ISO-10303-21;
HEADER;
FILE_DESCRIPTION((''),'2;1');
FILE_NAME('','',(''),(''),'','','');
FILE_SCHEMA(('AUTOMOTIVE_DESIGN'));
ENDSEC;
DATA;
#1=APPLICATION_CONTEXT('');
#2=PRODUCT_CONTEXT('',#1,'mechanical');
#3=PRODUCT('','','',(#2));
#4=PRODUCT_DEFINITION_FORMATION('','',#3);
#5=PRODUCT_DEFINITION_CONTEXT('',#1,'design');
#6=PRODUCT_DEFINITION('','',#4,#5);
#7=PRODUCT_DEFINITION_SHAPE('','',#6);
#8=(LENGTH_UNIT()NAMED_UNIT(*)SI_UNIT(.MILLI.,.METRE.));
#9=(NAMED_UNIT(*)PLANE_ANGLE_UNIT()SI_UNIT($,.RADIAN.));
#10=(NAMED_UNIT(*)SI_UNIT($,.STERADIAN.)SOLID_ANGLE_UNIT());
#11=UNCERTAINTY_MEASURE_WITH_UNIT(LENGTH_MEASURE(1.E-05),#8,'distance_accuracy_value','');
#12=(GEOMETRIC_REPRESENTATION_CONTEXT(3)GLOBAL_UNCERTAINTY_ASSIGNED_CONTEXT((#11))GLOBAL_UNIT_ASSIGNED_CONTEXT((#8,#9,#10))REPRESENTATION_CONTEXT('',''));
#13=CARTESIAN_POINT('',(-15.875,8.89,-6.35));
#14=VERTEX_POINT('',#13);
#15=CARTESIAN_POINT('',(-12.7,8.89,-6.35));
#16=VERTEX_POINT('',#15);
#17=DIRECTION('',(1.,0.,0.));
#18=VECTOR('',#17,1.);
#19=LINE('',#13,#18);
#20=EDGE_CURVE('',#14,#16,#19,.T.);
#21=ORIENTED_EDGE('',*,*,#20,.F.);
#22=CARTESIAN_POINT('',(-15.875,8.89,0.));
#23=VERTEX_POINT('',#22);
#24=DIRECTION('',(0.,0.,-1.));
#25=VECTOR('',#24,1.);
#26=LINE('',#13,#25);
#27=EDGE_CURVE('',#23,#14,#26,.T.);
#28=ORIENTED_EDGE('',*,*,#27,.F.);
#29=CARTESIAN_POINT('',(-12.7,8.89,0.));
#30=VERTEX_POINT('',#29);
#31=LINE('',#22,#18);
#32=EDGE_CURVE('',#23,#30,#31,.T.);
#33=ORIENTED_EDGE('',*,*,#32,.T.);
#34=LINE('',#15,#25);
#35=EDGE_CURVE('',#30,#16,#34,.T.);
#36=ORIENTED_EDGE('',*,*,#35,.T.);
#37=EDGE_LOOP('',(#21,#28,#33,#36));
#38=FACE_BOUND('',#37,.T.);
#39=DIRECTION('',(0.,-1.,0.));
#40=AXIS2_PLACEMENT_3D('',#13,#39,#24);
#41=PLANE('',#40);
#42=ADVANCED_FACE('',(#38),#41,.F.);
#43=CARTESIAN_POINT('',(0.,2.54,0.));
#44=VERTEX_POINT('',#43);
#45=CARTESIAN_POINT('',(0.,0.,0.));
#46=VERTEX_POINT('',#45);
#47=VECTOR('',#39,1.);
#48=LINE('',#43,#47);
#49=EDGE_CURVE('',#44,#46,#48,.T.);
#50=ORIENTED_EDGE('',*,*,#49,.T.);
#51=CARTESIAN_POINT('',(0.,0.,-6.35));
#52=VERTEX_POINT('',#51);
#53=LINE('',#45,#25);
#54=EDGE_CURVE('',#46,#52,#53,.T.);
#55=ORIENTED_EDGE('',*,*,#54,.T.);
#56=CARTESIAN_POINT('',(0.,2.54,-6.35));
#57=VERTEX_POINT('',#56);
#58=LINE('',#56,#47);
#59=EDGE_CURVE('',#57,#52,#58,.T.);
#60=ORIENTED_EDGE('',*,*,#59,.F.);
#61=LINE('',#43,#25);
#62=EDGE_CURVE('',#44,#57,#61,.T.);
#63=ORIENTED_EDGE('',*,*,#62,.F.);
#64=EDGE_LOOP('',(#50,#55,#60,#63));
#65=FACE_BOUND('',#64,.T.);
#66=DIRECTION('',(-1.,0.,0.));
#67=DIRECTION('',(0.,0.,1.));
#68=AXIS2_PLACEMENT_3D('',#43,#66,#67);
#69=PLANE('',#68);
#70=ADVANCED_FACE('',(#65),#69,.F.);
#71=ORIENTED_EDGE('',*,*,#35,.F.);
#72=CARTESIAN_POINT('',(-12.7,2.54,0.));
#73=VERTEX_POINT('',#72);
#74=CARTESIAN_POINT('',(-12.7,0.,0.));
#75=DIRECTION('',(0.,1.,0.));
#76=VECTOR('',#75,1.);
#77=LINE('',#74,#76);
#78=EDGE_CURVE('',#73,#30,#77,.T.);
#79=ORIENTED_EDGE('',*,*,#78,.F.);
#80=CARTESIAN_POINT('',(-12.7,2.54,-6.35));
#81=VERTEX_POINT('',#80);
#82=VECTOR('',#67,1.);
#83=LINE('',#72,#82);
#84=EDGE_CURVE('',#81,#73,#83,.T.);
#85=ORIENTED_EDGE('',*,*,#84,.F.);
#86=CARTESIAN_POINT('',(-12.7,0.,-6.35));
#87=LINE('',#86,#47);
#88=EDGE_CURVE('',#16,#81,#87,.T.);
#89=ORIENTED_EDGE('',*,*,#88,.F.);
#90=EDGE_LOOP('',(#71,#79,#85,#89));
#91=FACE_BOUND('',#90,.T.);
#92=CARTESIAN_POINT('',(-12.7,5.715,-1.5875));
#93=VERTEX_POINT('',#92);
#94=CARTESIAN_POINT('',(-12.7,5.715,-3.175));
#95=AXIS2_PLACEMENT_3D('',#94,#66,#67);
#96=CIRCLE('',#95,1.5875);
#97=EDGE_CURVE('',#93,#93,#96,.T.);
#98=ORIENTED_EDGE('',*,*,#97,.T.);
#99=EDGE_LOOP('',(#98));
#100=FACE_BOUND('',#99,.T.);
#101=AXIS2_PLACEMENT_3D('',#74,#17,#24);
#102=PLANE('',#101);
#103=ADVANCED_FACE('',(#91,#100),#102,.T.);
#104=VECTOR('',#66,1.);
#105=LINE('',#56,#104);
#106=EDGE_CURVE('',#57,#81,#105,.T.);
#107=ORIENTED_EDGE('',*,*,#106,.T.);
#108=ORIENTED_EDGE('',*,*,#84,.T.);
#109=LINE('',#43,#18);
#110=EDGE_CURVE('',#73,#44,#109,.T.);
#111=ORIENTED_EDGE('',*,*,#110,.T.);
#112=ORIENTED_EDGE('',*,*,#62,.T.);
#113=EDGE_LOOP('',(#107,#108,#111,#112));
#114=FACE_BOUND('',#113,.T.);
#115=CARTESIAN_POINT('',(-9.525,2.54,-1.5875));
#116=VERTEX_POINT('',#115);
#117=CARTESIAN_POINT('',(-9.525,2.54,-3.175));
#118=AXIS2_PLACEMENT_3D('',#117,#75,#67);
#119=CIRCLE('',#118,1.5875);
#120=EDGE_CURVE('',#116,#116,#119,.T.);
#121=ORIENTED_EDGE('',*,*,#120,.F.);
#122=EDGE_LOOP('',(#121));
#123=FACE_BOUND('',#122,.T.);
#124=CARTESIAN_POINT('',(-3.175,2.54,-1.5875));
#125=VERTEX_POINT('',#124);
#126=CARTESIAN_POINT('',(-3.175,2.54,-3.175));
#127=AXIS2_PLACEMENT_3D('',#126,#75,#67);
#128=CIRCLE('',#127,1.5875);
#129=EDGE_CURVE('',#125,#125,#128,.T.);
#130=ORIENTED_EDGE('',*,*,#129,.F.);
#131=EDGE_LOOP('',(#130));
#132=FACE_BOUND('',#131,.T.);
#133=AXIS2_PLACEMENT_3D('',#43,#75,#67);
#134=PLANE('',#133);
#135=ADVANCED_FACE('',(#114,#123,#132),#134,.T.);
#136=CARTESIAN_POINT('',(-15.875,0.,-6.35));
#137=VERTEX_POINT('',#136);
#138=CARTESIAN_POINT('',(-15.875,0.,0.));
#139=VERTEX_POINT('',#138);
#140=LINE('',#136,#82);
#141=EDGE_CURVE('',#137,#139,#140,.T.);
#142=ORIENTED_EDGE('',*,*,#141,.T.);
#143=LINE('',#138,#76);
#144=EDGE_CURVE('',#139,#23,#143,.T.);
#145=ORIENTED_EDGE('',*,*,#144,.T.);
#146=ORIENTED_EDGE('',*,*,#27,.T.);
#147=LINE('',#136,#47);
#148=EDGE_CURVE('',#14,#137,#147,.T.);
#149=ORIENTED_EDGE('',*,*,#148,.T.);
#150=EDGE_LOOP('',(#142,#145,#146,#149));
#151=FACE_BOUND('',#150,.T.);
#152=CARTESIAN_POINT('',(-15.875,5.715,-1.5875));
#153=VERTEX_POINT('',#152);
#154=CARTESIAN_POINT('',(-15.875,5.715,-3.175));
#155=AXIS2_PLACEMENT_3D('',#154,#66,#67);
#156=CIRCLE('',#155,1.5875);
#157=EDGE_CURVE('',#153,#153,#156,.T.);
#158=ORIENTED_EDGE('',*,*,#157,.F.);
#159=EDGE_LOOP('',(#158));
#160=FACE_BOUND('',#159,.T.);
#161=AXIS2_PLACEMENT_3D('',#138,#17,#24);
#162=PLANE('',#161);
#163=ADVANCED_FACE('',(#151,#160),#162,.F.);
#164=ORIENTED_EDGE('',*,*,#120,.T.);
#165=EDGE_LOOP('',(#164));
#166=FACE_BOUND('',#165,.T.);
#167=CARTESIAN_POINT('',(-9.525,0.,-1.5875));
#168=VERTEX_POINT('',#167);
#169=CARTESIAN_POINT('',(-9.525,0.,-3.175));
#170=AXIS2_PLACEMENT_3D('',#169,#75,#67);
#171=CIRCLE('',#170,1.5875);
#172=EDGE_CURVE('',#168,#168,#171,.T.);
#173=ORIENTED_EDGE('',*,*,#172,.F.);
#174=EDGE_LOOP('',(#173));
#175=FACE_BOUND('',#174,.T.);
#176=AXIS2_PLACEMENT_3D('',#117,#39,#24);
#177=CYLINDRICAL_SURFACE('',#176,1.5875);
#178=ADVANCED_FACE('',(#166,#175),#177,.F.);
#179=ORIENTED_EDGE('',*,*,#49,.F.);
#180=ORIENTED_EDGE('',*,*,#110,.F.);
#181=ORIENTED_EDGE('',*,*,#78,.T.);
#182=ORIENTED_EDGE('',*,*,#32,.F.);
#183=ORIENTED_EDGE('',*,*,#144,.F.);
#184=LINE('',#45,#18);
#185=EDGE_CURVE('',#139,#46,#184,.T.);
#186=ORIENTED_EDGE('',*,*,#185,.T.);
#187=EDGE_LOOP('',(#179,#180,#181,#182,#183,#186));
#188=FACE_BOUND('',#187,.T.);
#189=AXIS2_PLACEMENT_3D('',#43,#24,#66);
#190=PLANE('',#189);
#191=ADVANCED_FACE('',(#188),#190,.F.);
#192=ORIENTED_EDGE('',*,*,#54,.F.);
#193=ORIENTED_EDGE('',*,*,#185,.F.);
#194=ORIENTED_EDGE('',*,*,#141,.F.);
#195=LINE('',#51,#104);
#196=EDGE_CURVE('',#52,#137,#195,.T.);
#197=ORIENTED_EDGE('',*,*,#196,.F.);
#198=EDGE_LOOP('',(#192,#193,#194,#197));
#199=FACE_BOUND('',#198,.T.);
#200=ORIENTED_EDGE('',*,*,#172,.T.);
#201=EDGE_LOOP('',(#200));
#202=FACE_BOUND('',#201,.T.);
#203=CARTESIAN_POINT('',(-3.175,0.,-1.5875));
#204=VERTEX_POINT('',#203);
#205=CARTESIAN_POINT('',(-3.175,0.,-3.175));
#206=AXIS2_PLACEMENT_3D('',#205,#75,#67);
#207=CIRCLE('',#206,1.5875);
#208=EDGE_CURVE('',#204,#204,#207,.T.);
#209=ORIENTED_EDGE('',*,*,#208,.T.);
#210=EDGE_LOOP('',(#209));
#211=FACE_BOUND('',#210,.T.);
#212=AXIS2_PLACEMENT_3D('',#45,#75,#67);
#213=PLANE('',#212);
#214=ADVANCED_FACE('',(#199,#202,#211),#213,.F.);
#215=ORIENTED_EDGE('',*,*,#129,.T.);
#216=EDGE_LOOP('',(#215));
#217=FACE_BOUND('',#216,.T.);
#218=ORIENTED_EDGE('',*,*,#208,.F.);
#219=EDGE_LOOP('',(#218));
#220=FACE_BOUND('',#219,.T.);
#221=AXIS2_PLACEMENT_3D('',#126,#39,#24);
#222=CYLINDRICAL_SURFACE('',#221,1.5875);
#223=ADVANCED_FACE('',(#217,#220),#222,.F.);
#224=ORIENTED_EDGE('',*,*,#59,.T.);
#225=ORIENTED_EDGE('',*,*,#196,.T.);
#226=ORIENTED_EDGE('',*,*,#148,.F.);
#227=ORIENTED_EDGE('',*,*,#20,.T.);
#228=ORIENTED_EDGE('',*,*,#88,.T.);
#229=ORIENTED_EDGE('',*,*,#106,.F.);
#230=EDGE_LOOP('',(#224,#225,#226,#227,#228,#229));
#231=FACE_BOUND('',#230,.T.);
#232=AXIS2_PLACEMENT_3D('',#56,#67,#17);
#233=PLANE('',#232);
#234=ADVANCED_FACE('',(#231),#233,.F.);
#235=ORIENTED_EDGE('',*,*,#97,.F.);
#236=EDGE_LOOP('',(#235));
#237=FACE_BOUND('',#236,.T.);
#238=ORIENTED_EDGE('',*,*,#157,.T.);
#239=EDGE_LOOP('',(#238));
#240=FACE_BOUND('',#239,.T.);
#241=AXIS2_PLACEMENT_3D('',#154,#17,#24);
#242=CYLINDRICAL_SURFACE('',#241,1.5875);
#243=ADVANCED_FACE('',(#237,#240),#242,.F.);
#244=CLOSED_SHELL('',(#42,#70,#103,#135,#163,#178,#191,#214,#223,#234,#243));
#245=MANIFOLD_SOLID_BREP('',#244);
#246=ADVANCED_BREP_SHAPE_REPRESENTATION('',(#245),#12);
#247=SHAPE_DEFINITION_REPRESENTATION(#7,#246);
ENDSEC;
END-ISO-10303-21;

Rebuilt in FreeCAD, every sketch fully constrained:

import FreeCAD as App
import Part
import Sketcher
from FreeCAD import Vector
Q = App.Units.Quantity


def add_polygon(sketch, points):
    """Adds a closed chain of lines whose ends are joined by coincident constraints."""
    first, n = sketch.GeometryCount, len(points)
    for a, b in zip(points, points[1:] + points[:1]):
        sketch.addGeometry(Part.LineSegment(App.Vector(*a, 0), App.Vector(*b, 0)), False)
    for i in range(n):
        sketch.addConstraint(Sketcher.Constraint("Coincident", first + i, 2, first + (i + 1) % n, 1))

doc = App.newDocument("Part")
params = doc.addObject("Spreadsheet::Sheet", "Params")
for row, (alias, value) in enumerate([
    ("sketch1_diameter", "0.125 in"),
    ("sketch1_width", "0.5 in"),
    ("sketch1_height", "0.25 in"),
    ("pad1_length", "0.1 in"),
    ("sketch2_diameter", "0.125 in"),
    ("sketch2_width", "0.35 in"),
    ("sketch2_height", "0.25 in"),
    ("pad2_length", "0.125 in"),
], start=1):
    params.set(f"A{row}", alias)
    params.set(f"B{row}", "=" + value)
    params.setAlias(f"B{row}", alias)

body = doc.addObject("PartDesign::Body", "Body")

sketch1 = doc.addObject("Sketcher::SketchObject", "Sketch")
body.addObject(sketch1)
sketch1.AttachmentSupport = (doc.XZ_Plane, [""])
sketch1.MapMode = "FlatFace"
add_polygon(sketch1, [(-12.7, -6.35), (-12.7, 0), (0, 0), (0, -6.35)])
sketch1.addGeometry(Part.Circle(Vector(-9.525, -3.175, 0), Vector(0, 0, 1), 1.5875), False)
sketch1.addGeometry(Part.Circle(Vector(-3.175, -3.175, 0), Vector(0, 0, 1), 1.5875), False)
sketch1.addConstraint(Sketcher.Constraint("Vertical", 0))
sketch1.addConstraint(Sketcher.Constraint("Horizontal", 1))
sketch1.addConstraint(Sketcher.Constraint("Vertical", 2))
sketch1.addConstraint(Sketcher.Constraint("Horizontal", 3))
sketch1.addConstraint(Sketcher.Constraint("Coincident", 1, 2, -1, 1))
sketch1.addConstraint(Sketcher.Constraint("Equal", 4, 5))
sketch1.addConstraint(Sketcher.Constraint("Horizontal", 4, 3, 5, 3))
sketch1.addConstraint(Sketcher.Constraint("Diameter", 4, Q("0.125 in")))
sketch1.addConstraint(Sketcher.Constraint("DistanceX", 1, 1, 1, 2, Q("0.5 in")))
sketch1.addConstraint(Sketcher.Constraint("DistanceY", 0, 1, 0, 2, Q("0.25 in")))
sketch1.addConstraint(Sketcher.Constraint("DistanceX", 4, 3, 5, 3, Q("0.25 in")))
sketch1.addConstraint(Sketcher.Constraint("DistanceX", 4, 3, -1, 1, Q("0.375 in")))
sketch1.addConstraint(Sketcher.Constraint("DistanceY", 4, 3, -1, 1, Q("0.125 in")))
sketch1.setExpression("Constraints[11]", "Params.sketch1_diameter")
sketch1.setExpression("Constraints[12]", "Params.sketch1_width")
sketch1.setExpression("Constraints[13]", "Params.sketch1_height")
pad1 = doc.addObject("PartDesign::Pad", "Pad")
body.addObject(pad1)
pad1.Profile = sketch1
pad1.setExpression("Length", "Params.pad1_length")
pad1.Reversed = True

sketch2 = doc.addObject("Sketcher::SketchObject", "Sketch001")
body.addObject(sketch2)
sketch2.AttachmentSupport = (doc.YZ_Plane, [""])
sketch2.MapMode = "FlatFace"
sketch2.AttachmentOffset = App.Placement(Vector(0, 0, -0.5 * 25.4), App.Rotation())
add_polygon(sketch2, [(8.89, -6.35), (0, -6.35), (0, 0), (8.89, 0)])
sketch2.addGeometry(Part.Circle(Vector(5.715, -3.175, 0), Vector(0, 0, 1), 1.5875), False)
sketch2.addConstraint(Sketcher.Constraint("Horizontal", 0))
sketch2.addConstraint(Sketcher.Constraint("Vertical", 1))
sketch2.addConstraint(Sketcher.Constraint("Horizontal", 2))
sketch2.addConstraint(Sketcher.Constraint("Vertical", 3))
sketch2.addConstraint(Sketcher.Constraint("Coincident", 1, 2, -1, 1))
sketch2.addConstraint(Sketcher.Constraint("Diameter", 4, Q("0.125 in")))
sketch2.addConstraint(Sketcher.Constraint("DistanceX", 0, 2, 0, 1, Q("0.35 in")))
sketch2.addConstraint(Sketcher.Constraint("DistanceY", 1, 1, 1, 2, Q("0.25 in")))
sketch2.addConstraint(Sketcher.Constraint("DistanceX", -1, 1, 4, 3, Q("0.225 in")))
sketch2.addConstraint(Sketcher.Constraint("DistanceY", 4, 3, -1, 1, Q("0.125 in")))
sketch2.setExpression("Constraints[9]", "Params.sketch2_diameter")
sketch2.setExpression("Constraints[10]", "Params.sketch2_width")
sketch2.setExpression("Constraints[11]", "Params.sketch2_height")
pad2 = doc.addObject("PartDesign::Pad", "Pad001")
body.addObject(pad2)
pad2.Profile = sketch2
pad2.setExpression("Length", "Params.pad2_length")
pad2.Reversed = True

doc.recompute()
